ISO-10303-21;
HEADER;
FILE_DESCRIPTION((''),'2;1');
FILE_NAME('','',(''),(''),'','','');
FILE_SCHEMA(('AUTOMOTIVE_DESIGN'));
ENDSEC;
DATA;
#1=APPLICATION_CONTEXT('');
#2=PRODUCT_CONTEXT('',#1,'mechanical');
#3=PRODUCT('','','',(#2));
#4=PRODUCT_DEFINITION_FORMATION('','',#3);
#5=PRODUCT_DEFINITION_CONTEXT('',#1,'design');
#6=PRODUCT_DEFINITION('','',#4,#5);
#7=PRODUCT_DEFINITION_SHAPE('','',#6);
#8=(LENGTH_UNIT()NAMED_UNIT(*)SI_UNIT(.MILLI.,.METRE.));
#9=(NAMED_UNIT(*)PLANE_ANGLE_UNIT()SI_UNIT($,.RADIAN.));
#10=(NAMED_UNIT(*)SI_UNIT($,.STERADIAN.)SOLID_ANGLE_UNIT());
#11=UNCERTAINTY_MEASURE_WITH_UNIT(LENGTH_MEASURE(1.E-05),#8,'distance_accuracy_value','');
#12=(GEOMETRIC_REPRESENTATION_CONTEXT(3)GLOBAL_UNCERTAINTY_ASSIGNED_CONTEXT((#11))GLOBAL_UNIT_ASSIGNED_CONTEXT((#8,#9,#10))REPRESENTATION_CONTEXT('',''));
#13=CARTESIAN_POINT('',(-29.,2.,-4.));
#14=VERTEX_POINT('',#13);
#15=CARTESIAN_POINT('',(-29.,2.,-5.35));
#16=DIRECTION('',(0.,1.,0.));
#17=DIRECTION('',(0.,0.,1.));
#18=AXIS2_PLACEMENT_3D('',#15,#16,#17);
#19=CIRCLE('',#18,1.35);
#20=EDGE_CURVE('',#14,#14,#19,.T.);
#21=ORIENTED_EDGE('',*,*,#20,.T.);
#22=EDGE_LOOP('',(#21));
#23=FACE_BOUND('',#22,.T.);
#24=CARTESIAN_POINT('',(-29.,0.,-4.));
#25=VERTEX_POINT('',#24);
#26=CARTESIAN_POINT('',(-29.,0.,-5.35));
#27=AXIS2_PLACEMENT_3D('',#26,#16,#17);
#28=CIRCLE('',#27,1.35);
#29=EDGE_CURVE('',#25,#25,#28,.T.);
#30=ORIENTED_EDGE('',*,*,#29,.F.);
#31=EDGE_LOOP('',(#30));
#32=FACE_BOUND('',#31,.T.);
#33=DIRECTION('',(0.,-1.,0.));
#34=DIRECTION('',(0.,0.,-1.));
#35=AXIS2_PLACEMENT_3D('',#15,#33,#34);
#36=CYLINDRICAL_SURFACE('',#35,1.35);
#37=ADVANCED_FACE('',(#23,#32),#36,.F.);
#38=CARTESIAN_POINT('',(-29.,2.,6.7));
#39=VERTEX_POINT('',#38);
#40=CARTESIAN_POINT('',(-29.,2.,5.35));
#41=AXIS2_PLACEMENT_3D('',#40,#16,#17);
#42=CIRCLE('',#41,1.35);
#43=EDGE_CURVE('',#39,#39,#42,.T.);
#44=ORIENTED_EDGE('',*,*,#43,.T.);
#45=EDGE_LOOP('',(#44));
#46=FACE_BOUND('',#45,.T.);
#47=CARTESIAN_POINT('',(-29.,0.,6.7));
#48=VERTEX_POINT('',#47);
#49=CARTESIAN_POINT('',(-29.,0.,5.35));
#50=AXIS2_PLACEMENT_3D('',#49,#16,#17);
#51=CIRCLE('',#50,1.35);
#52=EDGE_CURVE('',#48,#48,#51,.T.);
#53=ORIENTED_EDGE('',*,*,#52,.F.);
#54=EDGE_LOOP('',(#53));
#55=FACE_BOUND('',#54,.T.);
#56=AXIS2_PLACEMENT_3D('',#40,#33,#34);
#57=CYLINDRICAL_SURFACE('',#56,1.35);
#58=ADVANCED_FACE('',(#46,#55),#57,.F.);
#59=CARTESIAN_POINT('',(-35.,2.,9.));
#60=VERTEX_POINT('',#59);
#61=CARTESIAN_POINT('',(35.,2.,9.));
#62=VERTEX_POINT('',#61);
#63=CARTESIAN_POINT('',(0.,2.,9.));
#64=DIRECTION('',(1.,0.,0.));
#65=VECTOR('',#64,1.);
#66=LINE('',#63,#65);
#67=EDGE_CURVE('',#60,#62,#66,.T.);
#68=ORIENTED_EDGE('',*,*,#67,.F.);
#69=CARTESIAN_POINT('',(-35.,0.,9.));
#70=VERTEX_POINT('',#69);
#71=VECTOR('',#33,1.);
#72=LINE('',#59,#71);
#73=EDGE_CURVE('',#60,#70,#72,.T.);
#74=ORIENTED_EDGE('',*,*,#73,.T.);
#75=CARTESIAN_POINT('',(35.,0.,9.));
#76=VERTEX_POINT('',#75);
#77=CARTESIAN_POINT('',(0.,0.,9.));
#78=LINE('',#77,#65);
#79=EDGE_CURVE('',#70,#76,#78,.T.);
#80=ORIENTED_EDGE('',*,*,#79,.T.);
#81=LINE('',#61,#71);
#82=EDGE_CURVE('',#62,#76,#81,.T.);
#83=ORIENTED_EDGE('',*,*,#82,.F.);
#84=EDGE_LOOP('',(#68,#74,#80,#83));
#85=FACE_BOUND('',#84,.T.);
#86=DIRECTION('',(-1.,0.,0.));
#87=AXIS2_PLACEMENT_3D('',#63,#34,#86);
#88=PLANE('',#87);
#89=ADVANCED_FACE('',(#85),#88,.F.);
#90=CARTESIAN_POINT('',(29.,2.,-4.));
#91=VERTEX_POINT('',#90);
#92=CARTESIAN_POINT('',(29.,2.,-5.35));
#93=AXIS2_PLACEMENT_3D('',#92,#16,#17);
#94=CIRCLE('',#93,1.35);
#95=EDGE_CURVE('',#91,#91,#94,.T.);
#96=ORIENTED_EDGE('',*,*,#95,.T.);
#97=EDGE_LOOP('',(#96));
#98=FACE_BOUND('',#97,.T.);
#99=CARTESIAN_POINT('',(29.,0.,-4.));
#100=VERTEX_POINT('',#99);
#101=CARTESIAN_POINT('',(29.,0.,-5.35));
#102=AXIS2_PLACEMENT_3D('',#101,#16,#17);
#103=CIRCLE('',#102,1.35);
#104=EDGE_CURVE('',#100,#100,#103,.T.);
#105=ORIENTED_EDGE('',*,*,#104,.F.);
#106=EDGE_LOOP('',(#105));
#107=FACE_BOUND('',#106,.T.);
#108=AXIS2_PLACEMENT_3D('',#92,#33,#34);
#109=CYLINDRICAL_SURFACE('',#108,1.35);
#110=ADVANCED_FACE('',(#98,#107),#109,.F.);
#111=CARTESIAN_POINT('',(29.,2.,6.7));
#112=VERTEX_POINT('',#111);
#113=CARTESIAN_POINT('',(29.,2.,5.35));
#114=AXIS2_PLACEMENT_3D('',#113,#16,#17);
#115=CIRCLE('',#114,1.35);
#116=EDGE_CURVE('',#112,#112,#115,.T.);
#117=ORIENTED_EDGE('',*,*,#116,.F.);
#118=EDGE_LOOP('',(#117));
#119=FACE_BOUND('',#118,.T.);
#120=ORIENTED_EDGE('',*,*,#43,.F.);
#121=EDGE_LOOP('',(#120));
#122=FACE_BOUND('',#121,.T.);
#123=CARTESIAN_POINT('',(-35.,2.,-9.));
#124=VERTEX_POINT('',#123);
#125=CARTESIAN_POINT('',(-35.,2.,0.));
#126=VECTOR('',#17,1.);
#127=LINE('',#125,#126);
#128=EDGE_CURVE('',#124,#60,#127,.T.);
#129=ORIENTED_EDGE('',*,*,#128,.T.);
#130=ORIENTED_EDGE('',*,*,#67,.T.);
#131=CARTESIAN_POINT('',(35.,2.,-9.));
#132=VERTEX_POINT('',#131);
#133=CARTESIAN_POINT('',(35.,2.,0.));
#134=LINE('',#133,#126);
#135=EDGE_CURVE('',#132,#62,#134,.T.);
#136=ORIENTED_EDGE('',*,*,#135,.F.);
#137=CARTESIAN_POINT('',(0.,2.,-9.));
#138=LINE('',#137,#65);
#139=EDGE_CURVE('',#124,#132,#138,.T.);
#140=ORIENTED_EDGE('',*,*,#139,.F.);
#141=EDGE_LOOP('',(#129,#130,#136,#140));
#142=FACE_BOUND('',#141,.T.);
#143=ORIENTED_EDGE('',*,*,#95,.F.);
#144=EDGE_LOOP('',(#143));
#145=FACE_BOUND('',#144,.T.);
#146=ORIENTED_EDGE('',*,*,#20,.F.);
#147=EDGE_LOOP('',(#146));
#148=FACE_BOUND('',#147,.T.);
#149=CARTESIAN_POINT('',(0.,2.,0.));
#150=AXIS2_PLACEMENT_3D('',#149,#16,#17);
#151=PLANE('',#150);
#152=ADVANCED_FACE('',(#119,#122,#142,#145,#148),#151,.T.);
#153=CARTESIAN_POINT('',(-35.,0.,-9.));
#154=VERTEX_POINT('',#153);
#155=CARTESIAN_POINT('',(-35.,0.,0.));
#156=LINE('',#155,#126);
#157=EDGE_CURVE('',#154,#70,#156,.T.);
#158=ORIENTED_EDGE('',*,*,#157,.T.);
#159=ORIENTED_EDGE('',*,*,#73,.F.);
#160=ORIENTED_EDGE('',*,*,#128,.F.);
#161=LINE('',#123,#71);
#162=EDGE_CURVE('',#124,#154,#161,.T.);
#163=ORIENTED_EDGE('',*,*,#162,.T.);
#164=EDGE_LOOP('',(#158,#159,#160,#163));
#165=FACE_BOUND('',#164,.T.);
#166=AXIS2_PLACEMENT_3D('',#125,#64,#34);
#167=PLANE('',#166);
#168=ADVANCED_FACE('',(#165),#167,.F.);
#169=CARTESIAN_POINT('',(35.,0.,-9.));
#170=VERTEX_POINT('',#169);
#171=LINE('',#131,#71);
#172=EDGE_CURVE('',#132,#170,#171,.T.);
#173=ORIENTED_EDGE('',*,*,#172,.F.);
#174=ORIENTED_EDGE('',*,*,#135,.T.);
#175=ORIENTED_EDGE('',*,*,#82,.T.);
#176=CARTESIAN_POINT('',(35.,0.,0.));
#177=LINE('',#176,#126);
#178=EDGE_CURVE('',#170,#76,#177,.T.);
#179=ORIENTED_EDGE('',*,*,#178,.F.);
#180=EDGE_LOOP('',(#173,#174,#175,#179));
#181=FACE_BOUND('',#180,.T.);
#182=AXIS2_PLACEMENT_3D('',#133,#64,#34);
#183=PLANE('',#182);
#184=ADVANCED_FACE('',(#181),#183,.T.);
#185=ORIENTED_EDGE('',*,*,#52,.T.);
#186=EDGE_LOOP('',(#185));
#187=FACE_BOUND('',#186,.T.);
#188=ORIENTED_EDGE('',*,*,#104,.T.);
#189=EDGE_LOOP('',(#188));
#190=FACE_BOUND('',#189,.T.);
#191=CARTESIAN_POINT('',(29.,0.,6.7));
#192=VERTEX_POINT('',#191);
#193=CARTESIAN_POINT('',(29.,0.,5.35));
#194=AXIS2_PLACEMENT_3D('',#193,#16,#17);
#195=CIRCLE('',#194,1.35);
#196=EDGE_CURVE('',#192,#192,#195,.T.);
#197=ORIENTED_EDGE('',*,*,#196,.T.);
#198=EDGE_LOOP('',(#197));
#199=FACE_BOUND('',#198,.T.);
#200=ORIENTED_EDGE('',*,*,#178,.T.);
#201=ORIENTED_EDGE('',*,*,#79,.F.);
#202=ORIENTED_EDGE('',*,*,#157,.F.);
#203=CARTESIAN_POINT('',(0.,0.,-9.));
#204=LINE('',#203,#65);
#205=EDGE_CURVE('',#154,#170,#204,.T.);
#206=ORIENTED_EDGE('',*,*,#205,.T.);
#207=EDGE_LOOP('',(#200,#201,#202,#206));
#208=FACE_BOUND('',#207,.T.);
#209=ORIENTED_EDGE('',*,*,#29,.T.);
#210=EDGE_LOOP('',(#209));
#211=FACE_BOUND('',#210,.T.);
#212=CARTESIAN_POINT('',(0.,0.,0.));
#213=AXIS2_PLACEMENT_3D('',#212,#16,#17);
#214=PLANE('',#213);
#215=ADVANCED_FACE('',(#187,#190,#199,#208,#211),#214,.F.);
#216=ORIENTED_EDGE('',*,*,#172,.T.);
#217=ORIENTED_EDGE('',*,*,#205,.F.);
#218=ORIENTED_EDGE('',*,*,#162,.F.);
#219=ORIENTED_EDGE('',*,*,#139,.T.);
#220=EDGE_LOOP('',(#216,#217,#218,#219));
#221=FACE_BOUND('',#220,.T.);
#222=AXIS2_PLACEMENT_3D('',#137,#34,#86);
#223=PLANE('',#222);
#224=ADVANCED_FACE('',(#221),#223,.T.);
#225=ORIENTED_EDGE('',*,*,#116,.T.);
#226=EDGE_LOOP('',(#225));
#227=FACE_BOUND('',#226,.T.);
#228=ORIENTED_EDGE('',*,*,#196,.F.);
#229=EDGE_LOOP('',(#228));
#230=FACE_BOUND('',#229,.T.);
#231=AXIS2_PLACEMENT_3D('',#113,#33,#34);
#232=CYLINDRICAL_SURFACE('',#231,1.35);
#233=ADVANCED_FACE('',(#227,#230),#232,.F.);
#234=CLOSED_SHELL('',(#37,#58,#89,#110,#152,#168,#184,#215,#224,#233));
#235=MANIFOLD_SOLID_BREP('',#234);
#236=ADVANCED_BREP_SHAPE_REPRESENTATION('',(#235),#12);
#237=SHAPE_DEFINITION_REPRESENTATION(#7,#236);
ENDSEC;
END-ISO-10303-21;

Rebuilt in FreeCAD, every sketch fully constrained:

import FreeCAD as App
import Part
import Sketcher
Q = App.Units.Quantity

doc = App.newDocument("Part")
body = doc.addObject("PartDesign::Body", "Body")

# Sketch on XZ plane
sketch1 = body.newObject("Sketcher::SketchObject", "Sketch")
sketch1.AttachmentSupport = (doc.getObject("XZ_Plane"), [""])
sketch1.MapMode = "FlatFace"
sketch1.addGeometry([
    Part.LineSegment(App.Vector(-35, -9, 0), App.Vector(-35, 9, 0)),  # 0
    Part.LineSegment(App.Vector(-35, 9, 0), App.Vector(35, 9, 0)),  # 1
    Part.LineSegment(App.Vector(35, 9, 0), App.Vector(35, -9, 0)),  # 2
    Part.LineSegment(App.Vector(35, -9, 0), App.Vector(-35, -9, 0)),  # 3
    Part.Circle(App.Vector(-29, 5.35, 0), App.Vector(0, 0, 1), 1.35),  # 4
    Part.Circle(App.Vector(29, 5.35, 0), App.Vector(0, 0, 1), 1.35),  # 5
    Part.Circle(App.Vector(-29, -5.35, 0), App.Vector(0, 0, 1), 1.35),  # 6
    Part.Circle(App.Vector(29, -5.35, 0), App.Vector(0, 0, 1), 1.35),  # 7
], False)
sketch1.addConstraint([
    Sketcher.Constraint("Coincident", 0, 2, 1, 1),
    Sketcher.Constraint("Coincident", 1, 2, 2, 1),
    Sketcher.Constraint("Coincident", 2, 2, 3, 1),
    Sketcher.Constraint("Coincident", 3, 2, 0, 1),
    Sketcher.Constraint("Vertical", 0),
    Sketcher.Constraint("Horizontal", 1),
    Sketcher.Constraint("Vertical", 2),
    Sketcher.Constraint("Horizontal", 3),
    Sketcher.Constraint("Equal", 4, 5),
    Sketcher.Constraint("Equal", 5, 6),
    Sketcher.Constraint("Equal", 6, 7),
    Sketcher.Constraint("Symmetric", 5, 3, 6, 3, -1, 1),
    Sketcher.Constraint("Symmetric", 4, 3, 7, 3, -1, 1),
    Sketcher.Constraint("Symmetric", 0, 2, 2, 2, -1, 1),
    Sketcher.Constraint("Symmetric", 4, 3, 5, 3, -2),
    Sketcher.Constraint("Diameter", 4, Q("2.7 mm")),
    Sketcher.Constraint("DistanceX", 1, 1, 1, 2, Q("70 mm")),
    Sketcher.Constraint("DistanceY", 0, 1, 0, 2, Q("18 mm")),
    Sketcher.Constraint("DistanceX", 4, 3, -1, 1, Q("29 mm")),
    Sketcher.Constraint("DistanceY", 6, 3, 4, 3, Q("10.7 mm")),
])
pad1 = body.newObject("PartDesign::Pad", "Pad")
pad1.Profile = sketch1
pad1.Length = 2
pad1.Reversed = True

doc.recompute()
